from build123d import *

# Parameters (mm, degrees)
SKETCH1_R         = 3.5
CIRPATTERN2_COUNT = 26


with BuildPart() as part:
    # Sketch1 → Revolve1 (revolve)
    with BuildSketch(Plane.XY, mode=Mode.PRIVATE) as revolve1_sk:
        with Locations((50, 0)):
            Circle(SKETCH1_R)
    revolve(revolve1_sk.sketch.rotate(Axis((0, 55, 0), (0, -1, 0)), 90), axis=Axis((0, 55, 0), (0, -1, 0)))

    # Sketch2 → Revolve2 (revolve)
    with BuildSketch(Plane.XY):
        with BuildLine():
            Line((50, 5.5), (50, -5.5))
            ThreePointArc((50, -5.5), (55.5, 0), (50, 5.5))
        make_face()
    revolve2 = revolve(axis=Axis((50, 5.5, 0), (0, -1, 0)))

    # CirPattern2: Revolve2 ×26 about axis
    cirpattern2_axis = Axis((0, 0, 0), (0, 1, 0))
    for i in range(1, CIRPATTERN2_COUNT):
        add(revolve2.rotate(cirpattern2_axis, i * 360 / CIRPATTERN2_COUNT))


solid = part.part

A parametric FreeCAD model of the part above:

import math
import FreeCAD as App
import Part
import Sketcher
Q = App.Units.Quantity

doc = App.newDocument("Part")
params = doc.addObject("Spreadsheet::Sheet", "Params")
for row, (alias, value) in enumerate([
    ("sketch1_diameter", "7 mm"),
    ("revolution_angle", "360 deg"),
    ("sketch2_radius", "5.5 mm"),
    ("revolution2_angle", "360 deg"),
], start=1):
    params.set(f"A{row}", alias)
    params.set(f"B{row}", "=" + value)
    params.setAlias(f"B{row}", alias)

body = doc.addObject("PartDesign::Body", "Body")

sketch1 = body.newObject("Sketcher::SketchObject", "Sketch")
sketch1.AttachmentSupport = (doc.getObject("XY_Plane"), [""])
sketch1.MapMode = "FlatFace"
sketch1.addGeometry(Part.Circle(App.Vector(50, 0, 0), App.Vector(0, 0, 1), 3.5), False)
sketch1.addConstraint([
    Sketcher.Constraint("PointOnObject", 0, 3, -1),
    Sketcher.Constraint("Diameter", 0, Q("7 mm")),
    Sketcher.Constraint("DistanceX", -1, 1, 0, 3, Q("50 mm")),
])
sketch1.setExpression("Constraints[1]", "Params.sketch1_diameter")
revolution = body.newObject("PartDesign::Revolution", "Revolution")
revolution.Profile = sketch1
revolution.ReferenceAxis = (sketch1, ["V_Axis"])
revolution.setExpression("Angle", "Params.revolution_angle")

sketch2 = body.newObject("Sketcher::SketchObject", "Sketch001")
sketch2.AttachmentSupport = (doc.getObject("XY_Plane"), [""])
sketch2.MapMode = "FlatFace"
sketch2.addGeometry([
    Part.LineSegment(App.Vector(50, 6, 0), App.Vector(50, -6, 0)),
    Part.ArcOfCircle(Part.Circle(App.Vector(50, 0, 0), App.Vector(0, 0, 1), 6), math.radians(-90), math.radians(90)),
], False)
sketch2.addGeometry(Part.LineSegment(App.Vector(50, 6, 0), App.Vector(50, -6, 0)), True)
sketch2.addConstraint([
    Sketcher.Constraint("Coincident", 0, 1, 1, 2),
    Sketcher.Constraint("Coincident", 1, 1, 0, 2),
    Sketcher.Constraint("Vertical", 0),
    Sketcher.Constraint("Vertical", 2),
    Sketcher.Constraint("Coincident", 2, 1, 0, 1),
    Sketcher.Constraint("PointOnObject", 1, 3, -1),
    Sketcher.Constraint("Vertical", 1, 3, 0, 1),
    Sketcher.Constraint("Equal", 0, 2),
    Sketcher.Constraint("Radius", 1, Q("5.5 mm")),
    Sketcher.Constraint("DistanceX", -1, 1, 1, 3, Q("50 mm")),
])
sketch2.setExpression("Constraints[8]", "Params.sketch2_radius")
revolution2 = body.newObject("PartDesign::Revolution", "Revolution001")
revolution2.Profile = sketch2
revolution2.ReferenceAxis = (sketch2, ["Axis0"])
revolution2.setExpression("Angle", "Params.revolution2_angle")
doc.recompute()

polarpattern = body.newObject("PartDesign::PolarPattern", "PolarPattern")
polarpattern.Originals = [revolution2]
polarpattern.Axis = (doc.getObject("Y_Axis"), [""])
polarpattern.Angle = 360
polarpattern.Occurrences = 26
body.Tip = polarpattern

doc.recompute()
